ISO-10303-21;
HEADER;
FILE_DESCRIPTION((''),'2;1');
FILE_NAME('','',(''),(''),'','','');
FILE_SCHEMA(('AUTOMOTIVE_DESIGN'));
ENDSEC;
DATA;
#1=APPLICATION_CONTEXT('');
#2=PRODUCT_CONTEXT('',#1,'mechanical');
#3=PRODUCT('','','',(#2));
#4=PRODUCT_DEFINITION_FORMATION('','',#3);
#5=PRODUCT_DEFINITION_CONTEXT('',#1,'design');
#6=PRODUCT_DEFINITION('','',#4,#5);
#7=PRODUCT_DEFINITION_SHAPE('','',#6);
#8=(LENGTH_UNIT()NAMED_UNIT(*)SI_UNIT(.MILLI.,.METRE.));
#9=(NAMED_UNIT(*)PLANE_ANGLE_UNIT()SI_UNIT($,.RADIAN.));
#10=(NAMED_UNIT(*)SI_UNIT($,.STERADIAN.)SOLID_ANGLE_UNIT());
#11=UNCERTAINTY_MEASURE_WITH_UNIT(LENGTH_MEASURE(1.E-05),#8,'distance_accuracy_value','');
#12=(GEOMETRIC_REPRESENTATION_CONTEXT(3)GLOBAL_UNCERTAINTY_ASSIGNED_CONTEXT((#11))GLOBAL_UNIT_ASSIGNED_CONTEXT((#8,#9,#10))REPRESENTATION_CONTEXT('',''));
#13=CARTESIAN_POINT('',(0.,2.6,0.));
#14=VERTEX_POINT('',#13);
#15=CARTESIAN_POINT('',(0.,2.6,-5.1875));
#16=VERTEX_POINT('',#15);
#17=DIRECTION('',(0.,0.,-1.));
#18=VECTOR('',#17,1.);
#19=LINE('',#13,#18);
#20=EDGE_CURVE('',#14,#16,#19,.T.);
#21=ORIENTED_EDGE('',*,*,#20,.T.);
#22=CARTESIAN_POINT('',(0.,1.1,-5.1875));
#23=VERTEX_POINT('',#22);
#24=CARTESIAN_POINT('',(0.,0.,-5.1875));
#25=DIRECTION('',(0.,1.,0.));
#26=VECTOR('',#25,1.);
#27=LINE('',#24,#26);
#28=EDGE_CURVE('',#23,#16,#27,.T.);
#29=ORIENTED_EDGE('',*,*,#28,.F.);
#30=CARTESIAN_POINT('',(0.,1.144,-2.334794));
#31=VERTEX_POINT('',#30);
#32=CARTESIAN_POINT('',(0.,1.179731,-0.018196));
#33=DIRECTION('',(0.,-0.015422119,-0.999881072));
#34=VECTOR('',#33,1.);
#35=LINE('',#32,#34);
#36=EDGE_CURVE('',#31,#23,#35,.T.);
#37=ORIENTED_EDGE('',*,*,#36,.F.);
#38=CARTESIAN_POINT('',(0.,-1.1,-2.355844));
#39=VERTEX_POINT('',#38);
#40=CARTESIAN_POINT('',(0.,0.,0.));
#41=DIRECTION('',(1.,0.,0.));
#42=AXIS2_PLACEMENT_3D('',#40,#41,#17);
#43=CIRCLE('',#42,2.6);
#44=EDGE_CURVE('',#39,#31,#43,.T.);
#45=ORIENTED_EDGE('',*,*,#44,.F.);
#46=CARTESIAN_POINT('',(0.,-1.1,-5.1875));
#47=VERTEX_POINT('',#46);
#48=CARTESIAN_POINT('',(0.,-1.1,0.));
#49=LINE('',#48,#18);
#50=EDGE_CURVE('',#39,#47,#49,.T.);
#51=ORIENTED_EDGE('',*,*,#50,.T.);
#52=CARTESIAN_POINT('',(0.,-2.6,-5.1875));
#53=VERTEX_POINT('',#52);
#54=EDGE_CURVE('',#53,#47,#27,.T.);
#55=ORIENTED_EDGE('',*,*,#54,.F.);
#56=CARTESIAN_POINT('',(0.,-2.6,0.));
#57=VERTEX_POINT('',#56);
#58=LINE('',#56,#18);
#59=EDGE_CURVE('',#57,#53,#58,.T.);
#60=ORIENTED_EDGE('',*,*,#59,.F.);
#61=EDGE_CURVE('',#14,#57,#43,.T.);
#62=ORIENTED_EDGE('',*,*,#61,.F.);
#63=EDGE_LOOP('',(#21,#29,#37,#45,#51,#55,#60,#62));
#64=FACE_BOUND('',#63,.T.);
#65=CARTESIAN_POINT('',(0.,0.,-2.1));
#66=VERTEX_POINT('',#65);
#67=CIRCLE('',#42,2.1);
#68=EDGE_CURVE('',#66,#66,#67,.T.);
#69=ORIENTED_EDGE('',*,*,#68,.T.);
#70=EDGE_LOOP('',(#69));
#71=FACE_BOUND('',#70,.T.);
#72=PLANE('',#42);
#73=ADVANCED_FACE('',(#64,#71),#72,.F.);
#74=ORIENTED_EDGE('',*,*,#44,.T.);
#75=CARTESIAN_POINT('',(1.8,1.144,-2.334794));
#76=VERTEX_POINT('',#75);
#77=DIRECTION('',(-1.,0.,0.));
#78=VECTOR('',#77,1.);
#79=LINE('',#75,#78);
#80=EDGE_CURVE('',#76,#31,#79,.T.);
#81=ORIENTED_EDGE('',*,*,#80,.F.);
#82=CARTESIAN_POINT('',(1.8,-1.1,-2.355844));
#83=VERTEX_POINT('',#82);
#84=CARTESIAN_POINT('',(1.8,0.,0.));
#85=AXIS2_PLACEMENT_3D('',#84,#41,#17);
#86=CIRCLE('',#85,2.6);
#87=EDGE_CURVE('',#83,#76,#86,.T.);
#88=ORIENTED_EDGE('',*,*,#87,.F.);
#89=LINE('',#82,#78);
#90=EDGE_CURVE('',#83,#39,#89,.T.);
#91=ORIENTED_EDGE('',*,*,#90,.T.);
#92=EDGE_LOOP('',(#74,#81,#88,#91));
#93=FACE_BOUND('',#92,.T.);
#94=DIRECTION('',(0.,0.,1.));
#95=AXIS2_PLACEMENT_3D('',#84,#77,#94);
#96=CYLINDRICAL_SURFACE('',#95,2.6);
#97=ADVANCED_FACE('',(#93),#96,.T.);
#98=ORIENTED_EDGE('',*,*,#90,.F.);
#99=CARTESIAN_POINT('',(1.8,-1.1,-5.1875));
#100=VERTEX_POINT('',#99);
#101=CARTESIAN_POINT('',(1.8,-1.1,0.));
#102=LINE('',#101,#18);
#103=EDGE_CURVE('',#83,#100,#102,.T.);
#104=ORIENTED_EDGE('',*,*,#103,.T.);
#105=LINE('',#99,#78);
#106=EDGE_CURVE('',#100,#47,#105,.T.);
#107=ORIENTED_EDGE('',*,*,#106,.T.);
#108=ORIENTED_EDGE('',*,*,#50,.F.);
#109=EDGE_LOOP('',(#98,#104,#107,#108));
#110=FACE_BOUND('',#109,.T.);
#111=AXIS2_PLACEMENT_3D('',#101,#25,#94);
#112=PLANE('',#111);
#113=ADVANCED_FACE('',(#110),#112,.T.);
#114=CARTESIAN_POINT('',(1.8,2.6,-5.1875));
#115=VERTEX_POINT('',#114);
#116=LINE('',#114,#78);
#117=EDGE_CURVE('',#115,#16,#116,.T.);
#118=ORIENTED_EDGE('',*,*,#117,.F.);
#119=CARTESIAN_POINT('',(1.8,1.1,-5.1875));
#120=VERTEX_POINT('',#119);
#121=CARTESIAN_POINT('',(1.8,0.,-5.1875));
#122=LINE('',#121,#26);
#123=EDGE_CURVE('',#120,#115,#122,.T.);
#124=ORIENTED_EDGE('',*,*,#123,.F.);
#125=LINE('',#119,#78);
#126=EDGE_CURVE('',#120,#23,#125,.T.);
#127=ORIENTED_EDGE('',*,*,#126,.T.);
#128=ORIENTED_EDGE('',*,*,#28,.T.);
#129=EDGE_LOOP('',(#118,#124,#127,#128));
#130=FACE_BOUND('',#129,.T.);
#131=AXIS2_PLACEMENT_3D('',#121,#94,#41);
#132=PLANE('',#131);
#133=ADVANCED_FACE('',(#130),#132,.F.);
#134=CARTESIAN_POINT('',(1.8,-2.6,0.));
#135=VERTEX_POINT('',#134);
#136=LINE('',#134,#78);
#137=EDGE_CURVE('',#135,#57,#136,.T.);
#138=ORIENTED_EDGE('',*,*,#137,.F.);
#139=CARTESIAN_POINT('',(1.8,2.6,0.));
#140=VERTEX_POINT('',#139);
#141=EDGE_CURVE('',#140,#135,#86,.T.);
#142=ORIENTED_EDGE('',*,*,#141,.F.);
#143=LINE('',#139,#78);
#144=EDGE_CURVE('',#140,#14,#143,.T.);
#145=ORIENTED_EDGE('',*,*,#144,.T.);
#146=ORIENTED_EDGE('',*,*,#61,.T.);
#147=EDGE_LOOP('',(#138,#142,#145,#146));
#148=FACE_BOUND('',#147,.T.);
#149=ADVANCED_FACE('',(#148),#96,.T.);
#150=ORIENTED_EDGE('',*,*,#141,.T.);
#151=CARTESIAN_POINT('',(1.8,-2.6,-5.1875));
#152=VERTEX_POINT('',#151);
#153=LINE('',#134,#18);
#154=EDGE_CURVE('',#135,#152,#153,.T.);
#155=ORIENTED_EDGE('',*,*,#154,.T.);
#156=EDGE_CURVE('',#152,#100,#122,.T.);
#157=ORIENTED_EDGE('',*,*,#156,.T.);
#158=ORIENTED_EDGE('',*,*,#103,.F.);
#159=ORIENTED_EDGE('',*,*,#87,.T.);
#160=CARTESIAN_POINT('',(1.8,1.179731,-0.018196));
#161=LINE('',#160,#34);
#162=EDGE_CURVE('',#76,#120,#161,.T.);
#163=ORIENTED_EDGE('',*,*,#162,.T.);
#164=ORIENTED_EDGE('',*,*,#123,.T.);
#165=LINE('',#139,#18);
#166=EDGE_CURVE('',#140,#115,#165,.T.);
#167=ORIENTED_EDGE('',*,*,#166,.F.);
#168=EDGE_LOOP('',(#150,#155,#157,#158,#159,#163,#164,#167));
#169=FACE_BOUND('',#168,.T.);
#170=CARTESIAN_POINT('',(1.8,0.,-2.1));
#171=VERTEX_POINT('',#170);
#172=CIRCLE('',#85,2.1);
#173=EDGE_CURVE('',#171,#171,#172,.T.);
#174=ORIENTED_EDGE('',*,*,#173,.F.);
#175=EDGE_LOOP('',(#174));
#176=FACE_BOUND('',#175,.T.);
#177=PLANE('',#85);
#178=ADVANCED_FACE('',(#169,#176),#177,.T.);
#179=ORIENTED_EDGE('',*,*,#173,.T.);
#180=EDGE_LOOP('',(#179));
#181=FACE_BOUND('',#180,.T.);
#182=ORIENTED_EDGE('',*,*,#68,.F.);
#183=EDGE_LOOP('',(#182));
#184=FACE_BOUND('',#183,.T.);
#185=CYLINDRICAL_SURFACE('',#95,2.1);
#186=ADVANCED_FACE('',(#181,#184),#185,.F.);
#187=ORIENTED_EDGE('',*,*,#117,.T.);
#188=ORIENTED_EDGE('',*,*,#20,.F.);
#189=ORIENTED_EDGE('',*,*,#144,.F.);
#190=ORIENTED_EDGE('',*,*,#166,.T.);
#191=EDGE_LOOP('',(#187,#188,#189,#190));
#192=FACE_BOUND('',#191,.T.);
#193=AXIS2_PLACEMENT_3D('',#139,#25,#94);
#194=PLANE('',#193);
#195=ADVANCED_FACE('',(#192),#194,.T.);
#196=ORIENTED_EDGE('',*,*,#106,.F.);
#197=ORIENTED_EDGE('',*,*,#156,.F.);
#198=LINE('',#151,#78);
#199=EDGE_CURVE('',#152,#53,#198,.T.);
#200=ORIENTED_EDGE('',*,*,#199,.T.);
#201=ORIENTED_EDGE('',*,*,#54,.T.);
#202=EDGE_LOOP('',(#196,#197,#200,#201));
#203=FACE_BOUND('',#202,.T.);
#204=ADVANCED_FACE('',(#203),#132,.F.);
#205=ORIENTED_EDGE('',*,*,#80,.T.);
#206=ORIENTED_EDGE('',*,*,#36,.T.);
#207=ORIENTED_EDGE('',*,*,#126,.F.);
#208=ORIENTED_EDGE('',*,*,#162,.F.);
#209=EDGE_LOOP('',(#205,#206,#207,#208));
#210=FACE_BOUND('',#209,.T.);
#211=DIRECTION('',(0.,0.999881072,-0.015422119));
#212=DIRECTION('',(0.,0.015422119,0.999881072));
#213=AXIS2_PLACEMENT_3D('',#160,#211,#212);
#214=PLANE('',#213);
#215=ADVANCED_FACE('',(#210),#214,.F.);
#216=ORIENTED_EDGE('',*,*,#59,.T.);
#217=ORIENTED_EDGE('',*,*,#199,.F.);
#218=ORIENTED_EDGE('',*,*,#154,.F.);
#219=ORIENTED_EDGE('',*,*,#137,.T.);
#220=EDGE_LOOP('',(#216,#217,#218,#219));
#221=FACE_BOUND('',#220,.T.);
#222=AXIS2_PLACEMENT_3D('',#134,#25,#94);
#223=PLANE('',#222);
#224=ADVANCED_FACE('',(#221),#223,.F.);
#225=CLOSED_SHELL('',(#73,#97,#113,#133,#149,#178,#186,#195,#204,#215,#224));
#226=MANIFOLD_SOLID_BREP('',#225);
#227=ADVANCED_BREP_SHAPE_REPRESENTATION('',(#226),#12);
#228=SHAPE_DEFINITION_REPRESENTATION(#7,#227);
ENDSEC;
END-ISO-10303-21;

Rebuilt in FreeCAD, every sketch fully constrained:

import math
import FreeCAD as App
import Part
import Sketcher
Q = App.Units.Quantity

doc = App.newDocument("Part")
body = doc.addObject("PartDesign::Body", "Body")

sketch1 = body.newObject("Sketcher::SketchObject", "Sketch")
sketch1.AttachmentSupport = (doc.getObject("YZ_Plane"), [""])
sketch1.MapMode = "FlatFace"
sketch1.addGeometry(Part.LineSegment(App.Vector(-2.6, 0, 0), App.Vector(-2.6, -5.2, 0)), False)
sketch1.addGeometry(Part.LineSegment(App.Vector(-2.6, -5.2, 0), App.Vector(-1.1, -5.2, 0)), False)
sketch1.addGeometry(Part.LineSegment(App.Vector(-1.1, -5.2, 0), App.Vector(-1.1, -2.4, 0)), False)
sketch1.addGeometry(Part.ArcOfCircle(Part.Circle(App.Vector(0, 0, 0), App.Vector(0, 0, 1), 2.6), math.radians(-115), math.radians(-64)), False)
sketch1.addGeometry(Part.LineSegment(App.Vector(1.1, -2.3, 0), App.Vector(1.1, -5.2, 0)), False)
sketch1.addGeometry(Part.LineSegment(App.Vector(1.1, -5.2, 0), App.Vector(2.6, -5.2, 0)), False)
sketch1.addGeometry(Part.LineSegment(App.Vector(2.6, -5.2, 0), App.Vector(2.6, 0, 0)), False)
sketch1.addGeometry(Part.ArcOfCircle(Part.Circle(App.Vector(0, 0, 0), App.Vector(0, 0, 1), 2.6), math.radians(0), math.radians(180)), False)
sketch1.addGeometry(Part.Circle(App.Vector(0, 0, 0), App.Vector(0, 0, 1), 2.1), False)
sketch1.addConstraint(Sketcher.Constraint("Coincident", 0, 2, 1, 1))
sketch1.addConstraint(Sketcher.Constraint("Coincident", 1, 2, 2, 1))
sketch1.addConstraint(Sketcher.Constraint("Coincident", 2, 2, 3, 1))
sketch1.addConstraint(Sketcher.Constraint("Coincident", 3, 2, 4, 1))
sketch1.addConstraint(Sketcher.Constraint("Coincident", 4, 2, 5, 1))
sketch1.addConstraint(Sketcher.Constraint("Coincident", 5, 2, 6, 1))
sketch1.addConstraint(Sketcher.Constraint("Tangent", 6, 2, 7, 1))
sketch1.addConstraint(Sketcher.Constraint("Tangent", 7, 2, 0, 1))
sketch1.addConstraint(Sketcher.Constraint("Vertical", 0))
sketch1.addConstraint(Sketcher.Constraint("Horizontal", 1))
sketch1.addConstraint(Sketcher.Constraint("Vertical", 2))
sketch1.addConstraint(Sketcher.Constraint("Horizontal", 5))
sketch1.addConstraint(Sketcher.Constraint("Vertical", 6))
sketch1.addConstraint(Sketcher.Constraint("Coincident", 3, 3, -1, 1))
sketch1.addConstraint(Sketcher.Constraint("Coincident", 7, 3, -1, 1))
sketch1.addConstraint(Sketcher.Constraint("Coincident", 8, 3, -1, 1))
sketch1.addConstraint(Sketcher.Constraint("Equal", 3, 7))
sketch1.addConstraint(Sketcher.Constraint("Symmetric", 1, 2, 4, 2, -2))
sketch1.addConstraint(Sketcher.Constraint("Diameter", 8, Q("4.2 mm")))
sketch1.addConstraint(Sketcher.Constraint("Radius", 3, Q("2.6 mm")))
sketch1.addConstraint(Sketcher.Constraint("DistanceX", 1, 1, 1, 2, Q("1.5 mm")))
sketch1.addConstraint(Sketcher.Constraint("DistanceY", 0, 2, 0, 1, Q("5.1875 mm")))
sketch1.addConstraint(Sketcher.Constraint("DistanceX", -1, 1, 3, 2, Q("1.144 mm")))
pad1 = body.newObject("PartDesign::Pad", "Pad")
pad1.Profile = sketch1
pad1.Length = 1.8

doc.recompute()
